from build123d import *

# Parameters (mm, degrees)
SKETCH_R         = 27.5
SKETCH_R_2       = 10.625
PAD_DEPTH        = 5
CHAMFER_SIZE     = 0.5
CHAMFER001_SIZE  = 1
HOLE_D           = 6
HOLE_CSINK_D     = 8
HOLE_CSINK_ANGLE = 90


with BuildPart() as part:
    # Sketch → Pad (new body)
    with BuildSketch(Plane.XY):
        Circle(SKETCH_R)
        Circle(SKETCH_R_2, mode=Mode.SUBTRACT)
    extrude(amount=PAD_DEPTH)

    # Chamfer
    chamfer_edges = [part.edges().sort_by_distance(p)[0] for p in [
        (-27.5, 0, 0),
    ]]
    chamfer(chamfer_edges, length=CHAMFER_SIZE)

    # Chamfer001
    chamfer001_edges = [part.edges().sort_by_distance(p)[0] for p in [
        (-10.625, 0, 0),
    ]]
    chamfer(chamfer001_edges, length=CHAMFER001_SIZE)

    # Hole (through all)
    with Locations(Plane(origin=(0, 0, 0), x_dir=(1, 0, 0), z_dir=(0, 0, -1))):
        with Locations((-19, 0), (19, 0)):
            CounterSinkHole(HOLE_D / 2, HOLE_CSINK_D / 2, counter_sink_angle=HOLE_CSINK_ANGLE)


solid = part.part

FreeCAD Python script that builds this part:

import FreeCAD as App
import Part
import Sketcher
from FreeCAD import Vector


def edges_at(feature, points):
    """Names of the edges that pass closest to the given points."""
    edges = feature.Shape.Edges
    near = lambda p: min(range(len(edges)), key=lambda i: edges[i].distToShape(Part.Vertex(*p))[0])
    return sorted({f"Edge{near(p) + 1}" for p in points})

doc = App.newDocument("Part")
params = doc.addObject("Spreadsheet::Sheet", "Params")
for row, (alias, value) in enumerate([
    ("sketch1_diameter", "55 mm"),
    ("sketch1_diameter2", "21.25 mm"),
    ("pad1_length", "5 mm"),
    ("chamfer_size", "0.5 mm"),
    ("chamfer2_size", "1 mm"),
    ("sketch2_diameter", "6 mm"),
    ("hole_diameter", "6 mm"),
    ("hole_csink_diameter", "8 mm"),
], start=1):
    params.set(f"A{row}", alias)
    params.set(f"B{row}", "=" + value)
    params.setAlias(f"B{row}", alias)

body = doc.addObject("PartDesign::Body", "Body")

# Sketch on XY plane
sketch1 = body.newObject("Sketcher::SketchObject", "Sketch")
sketch1.AttachmentSupport = (doc.getObject("XY_Plane"), [""])
sketch1.MapMode = "FlatFace"
sketch1.addGeometry([
    Part.Circle(Vector(0, 0, 0), Vector(0, 0, 1), 27.5),
    Part.Circle(Vector(0, 0, 0), Vector(0, 0, 1), 10.625),
], False)
sketch1.addConstraint([
    Sketcher.Constraint("Coincident", 0, 3, -1, 1),
    Sketcher.Constraint("Coincident", 1, 3, -1, 1),
    Sketcher.Constraint("Diameter", 0, 55.0),
    Sketcher.Constraint("Diameter", 1, 21.25),
])
sketch1.setExpression("Constraints[2]", "Params.sketch1_diameter")
sketch1.setExpression("Constraints[3]", "Params.sketch1_diameter2")
pad1 = body.newObject("PartDesign::Pad", "Pad")
pad1.Profile = sketch1
pad1.setExpression("Length", "Params.pad1_length")
doc.recompute()

chamfer = body.newObject("PartDesign::Chamfer", "Chamfer")
chamfer.Base = (pad1, edges_at(pad1, [(-27.5, 0, 0)]))
chamfer.setExpression("Size", "Params.chamfer_size")
doc.recompute()

chamfer2 = body.newObject("PartDesign::Chamfer", "Chamfer001")
chamfer2.Base = (chamfer, edges_at(chamfer, [(-10.625, 0, 0)]))
chamfer2.setExpression("Size", "Params.chamfer2_size")

# Sketch on XY plane
sketch2 = body.newObject("Sketcher::SketchObject", "Sketch001")
sketch2.AttachmentSupport = (doc.getObject("XY_Plane"), [""])
sketch2.MapMode = "FlatFace"
sketch2.addGeometry([
    Part.Circle(Vector(-19, 0, 0), Vector(0, 0, 1), 3),
    Part.Circle(Vector(19, 0, 0), Vector(0, 0, 1), 3),
], False)
sketch2.addConstraint([
    Sketcher.Constraint("Equal", 0, 1),
    Sketcher.Constraint("Symmetric", 0, 3, 1, 3, -1, 1),
    Sketcher.Constraint("PointOnObject", 0, 3, -1),
    Sketcher.Constraint("Diameter", 0, 6.0),
    Sketcher.Constraint("DistanceX", 0, 3, -1, 1, 19.0),
])
sketch2.setExpression("Constraints[3]", "Params.sketch2_diameter")
doc.recompute()
hole = body.newObject("PartDesign::Hole", "Hole")
hole.Profile = sketch2
hole.ThreadType = "None"
hole.setExpression("Diameter", "Params.hole_diameter")
hole.DepthType = "ThroughAll"
hole.HoleCutType = "Countersink"
hole.setExpression("HoleCutDiameter", "Params.hole_csink_diameter")
hole.HoleCutCountersinkAngle = 90
hole.Reversed = True

doc.recompute()
